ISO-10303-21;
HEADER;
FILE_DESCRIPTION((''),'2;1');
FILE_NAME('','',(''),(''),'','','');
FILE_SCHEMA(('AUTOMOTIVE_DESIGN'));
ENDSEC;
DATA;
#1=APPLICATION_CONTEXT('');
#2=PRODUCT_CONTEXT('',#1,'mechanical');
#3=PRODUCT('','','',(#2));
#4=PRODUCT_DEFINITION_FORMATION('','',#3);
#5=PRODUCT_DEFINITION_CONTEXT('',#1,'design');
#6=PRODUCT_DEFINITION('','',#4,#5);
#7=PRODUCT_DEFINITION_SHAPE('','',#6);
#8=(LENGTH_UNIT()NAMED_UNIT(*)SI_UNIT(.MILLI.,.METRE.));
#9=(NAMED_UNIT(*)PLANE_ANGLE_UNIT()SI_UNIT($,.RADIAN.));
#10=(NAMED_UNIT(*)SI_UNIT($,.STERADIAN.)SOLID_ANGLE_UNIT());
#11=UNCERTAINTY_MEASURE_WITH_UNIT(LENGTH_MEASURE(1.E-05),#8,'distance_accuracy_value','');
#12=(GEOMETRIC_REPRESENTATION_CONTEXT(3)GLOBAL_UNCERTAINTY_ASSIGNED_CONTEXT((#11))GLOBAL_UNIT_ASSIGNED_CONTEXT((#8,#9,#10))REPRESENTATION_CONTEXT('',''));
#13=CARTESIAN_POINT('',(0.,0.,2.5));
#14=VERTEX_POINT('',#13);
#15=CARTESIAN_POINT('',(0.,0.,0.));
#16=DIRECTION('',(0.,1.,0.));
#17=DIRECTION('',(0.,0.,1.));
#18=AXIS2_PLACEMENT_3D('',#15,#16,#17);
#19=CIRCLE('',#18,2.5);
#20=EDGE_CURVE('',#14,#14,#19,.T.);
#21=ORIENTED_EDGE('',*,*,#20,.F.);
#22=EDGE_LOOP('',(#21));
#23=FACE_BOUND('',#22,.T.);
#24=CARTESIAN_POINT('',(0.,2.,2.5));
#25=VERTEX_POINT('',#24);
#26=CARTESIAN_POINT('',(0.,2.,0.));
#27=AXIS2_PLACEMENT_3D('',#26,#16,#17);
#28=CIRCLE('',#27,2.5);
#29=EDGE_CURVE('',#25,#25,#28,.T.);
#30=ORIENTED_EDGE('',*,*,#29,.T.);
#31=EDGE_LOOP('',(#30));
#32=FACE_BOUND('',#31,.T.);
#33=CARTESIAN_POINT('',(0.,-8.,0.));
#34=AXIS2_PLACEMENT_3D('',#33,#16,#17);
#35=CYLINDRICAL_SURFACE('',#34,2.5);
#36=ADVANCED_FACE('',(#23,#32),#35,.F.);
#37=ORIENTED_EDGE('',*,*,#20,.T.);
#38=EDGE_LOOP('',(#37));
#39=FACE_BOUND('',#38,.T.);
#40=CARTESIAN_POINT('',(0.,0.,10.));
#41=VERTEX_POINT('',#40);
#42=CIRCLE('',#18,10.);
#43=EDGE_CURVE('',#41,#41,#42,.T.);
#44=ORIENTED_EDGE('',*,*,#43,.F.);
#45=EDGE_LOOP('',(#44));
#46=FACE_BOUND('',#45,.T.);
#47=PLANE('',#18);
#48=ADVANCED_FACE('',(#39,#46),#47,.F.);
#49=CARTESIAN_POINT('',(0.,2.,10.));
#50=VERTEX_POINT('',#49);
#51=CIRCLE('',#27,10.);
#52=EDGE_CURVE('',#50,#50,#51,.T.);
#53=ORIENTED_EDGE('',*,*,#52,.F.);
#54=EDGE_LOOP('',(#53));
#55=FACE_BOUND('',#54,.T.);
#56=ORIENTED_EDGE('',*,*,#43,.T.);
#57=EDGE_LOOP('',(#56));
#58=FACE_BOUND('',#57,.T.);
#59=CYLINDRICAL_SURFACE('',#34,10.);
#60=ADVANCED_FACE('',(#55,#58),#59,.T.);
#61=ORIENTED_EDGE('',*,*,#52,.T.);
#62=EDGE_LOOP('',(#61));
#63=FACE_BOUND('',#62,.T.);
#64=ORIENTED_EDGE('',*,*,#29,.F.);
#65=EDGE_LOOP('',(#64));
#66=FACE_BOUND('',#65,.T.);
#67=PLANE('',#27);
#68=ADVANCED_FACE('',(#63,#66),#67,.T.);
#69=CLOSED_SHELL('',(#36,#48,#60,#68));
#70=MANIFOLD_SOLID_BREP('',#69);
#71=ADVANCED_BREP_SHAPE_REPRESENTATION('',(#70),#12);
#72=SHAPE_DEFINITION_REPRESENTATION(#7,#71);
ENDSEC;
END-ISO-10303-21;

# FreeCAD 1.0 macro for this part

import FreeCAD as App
import Part
import Sketcher
from FreeCAD import Vector

doc = App.newDocument("Part")
body = doc.addObject("PartDesign::Body", "Body")

# Sketch on XZ plane
sketch1 = body.newObject("Sketcher::SketchObject", "Sketch")
sketch1.AttachmentSupport = (doc.getObject("XZ_Plane"), [""])
sketch1.MapMode = "FlatFace"
sketch1.addGeometry([
    Part.Circle(Vector(0, 0, 0), Vector(0, 0, 1), 12.5),
    Part.Circle(Vector(0, 0, 0), Vector(0, 0, 1), 2.1),
], False)
sketch1.addConstraint([
    Sketcher.Constraint("Coincident", 0, 3, -1, 1),
    Sketcher.Constraint("Coincident", 1, 3, -1, 1),
    Sketcher.Constraint("Diameter", 0, 25.0),
    Sketcher.Constraint("Diameter", 1, 4.25),
])
pad1 = body.newObject("PartDesign::Pad", "Pad")
pad1.Profile = sketch1
pad1.Length = 2
pad1.Reversed = True

# Sketch on XZ plane
sketch2 = body.newObject("Sketcher::SketchObject", "Sketch001")
sketch2.AttachmentSupport = (doc.getObject("XZ_Plane"), [""])
sketch2.MapMode = "FlatFace"
sketch2.AttachmentOffset = App.Placement(Vector(0, 0, -2), App.Rotation())
sketch2.addGeometry(Part.Circle(Vector(0, 0, 0), Vector(0, 0, 1), 2.5), False)
sketch2.addConstraint([
    Sketcher.Constraint("Coincident", 0, 3, -1, 1),
    Sketcher.Constraint("Diameter", 0, 5.0),
])
pocket1 = body.newObject("PartDesign::Pocket", "Pocket")
pocket1.Profile = sketch2
pocket1.Length = 10
pocket1.Reversed = True

# Sketch on XZ plane
sketch3 = body.newObject("Sketcher::SketchObject", "Sketch002")
sketch3.AttachmentSupport = (doc.getObject("XZ_Plane"), [""])
sketch3.MapMode = "FlatFace"
sketch3.AttachmentOffset = App.Placement(Vector(0, 0, 8), App.Rotation())
sketch3.addGeometry([
    Part.Circle(Vector(0, 0, 0), Vector(0, 0, 1), 12),
    Part.Circle(Vector(0, 0, 0), Vector(0, 0, 1), 10),
], False)
sketch3.addConstraint([
    Sketcher.Constraint("Coincident", 0, 3, -1, 1),
    Sketcher.Constraint("Coincident", 1, 3, -1, 1),
    Sketcher.Constraint("Diameter", 0, 25.0),
    Sketcher.Constraint("Diameter", 1, 20.0),
])
pocket2 = body.newObject("PartDesign::Pocket", "Pocket001")
pocket2.Profile = sketch3
pocket2.Length = 10

doc.recompute()
